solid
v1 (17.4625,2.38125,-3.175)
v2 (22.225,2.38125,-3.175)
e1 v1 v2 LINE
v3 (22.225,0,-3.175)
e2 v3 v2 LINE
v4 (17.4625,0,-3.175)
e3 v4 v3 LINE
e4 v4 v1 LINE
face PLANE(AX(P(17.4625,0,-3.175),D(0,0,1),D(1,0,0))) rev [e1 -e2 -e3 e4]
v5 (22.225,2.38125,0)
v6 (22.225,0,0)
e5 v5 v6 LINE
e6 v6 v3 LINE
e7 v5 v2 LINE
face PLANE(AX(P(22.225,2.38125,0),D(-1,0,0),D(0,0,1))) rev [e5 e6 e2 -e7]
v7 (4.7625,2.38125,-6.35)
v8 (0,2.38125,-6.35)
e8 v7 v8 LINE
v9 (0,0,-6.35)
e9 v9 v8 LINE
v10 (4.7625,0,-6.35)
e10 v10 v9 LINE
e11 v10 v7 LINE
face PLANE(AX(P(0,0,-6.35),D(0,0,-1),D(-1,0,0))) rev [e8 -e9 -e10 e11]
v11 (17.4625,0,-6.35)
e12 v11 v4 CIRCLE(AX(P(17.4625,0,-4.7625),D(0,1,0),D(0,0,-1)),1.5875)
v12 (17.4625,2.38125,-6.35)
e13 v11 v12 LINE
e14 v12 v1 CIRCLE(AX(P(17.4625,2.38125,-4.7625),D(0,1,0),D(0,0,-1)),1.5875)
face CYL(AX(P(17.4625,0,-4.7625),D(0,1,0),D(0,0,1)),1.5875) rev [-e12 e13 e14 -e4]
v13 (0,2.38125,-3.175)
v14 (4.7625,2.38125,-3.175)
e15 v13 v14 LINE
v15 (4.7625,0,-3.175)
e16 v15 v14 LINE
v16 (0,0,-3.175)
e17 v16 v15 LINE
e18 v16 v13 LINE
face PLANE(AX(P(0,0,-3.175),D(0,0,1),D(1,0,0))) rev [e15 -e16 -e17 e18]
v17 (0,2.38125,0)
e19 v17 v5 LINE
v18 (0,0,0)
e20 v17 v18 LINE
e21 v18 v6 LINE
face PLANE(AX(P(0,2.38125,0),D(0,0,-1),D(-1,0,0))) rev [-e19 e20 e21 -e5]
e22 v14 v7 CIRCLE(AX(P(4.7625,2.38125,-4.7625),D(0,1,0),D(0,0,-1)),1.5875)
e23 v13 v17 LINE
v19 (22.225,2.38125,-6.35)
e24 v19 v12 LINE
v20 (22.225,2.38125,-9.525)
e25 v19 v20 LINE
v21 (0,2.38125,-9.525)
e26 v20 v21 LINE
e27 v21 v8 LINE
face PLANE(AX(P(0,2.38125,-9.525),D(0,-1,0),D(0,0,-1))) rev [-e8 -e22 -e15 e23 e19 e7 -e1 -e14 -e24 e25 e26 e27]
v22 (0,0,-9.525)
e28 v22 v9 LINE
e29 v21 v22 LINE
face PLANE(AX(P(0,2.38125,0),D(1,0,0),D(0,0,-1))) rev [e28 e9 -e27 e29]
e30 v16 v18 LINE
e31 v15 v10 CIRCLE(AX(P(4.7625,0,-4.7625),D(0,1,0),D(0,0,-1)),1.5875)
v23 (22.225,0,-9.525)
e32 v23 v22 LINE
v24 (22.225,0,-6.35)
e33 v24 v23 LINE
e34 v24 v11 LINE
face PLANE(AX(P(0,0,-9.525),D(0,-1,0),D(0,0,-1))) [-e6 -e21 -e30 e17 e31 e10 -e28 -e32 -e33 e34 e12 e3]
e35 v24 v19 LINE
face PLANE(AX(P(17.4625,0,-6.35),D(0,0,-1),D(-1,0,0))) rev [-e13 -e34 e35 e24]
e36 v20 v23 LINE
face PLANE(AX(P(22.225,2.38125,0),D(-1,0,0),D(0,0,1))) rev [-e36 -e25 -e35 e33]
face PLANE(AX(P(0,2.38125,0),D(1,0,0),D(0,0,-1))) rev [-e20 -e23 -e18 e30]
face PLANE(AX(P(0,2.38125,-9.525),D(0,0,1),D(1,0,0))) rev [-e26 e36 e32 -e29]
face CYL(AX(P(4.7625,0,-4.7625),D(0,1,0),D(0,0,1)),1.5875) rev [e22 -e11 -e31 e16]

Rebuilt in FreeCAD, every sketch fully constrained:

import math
import FreeCAD as App
import Part
import Sketcher
Q = App.Units.Quantity

doc = App.newDocument("Part")
body = doc.addObject("PartDesign::Body", "Body")

# Sketch on XZ plane
sketch1 = body.newObject("Sketcher::SketchObject", "Sketch")
sketch1.AttachmentSupport = (doc.getObject("XZ_Plane"), [""])
sketch1.MapMode = "FlatFace"
sketch1.addGeometry([
    Part.LineSegment(App.Vector(0, -10, 0), App.Vector(0, 0, 0)),
    Part.LineSegment(App.Vector(0, 0, 0), App.Vector(22, 0, 0)),
    Part.LineSegment(App.Vector(22, 0, 0), App.Vector(22, -10, 0)),
    Part.LineSegment(App.Vector(22, -10, 0), App.Vector(0, -10, 0)),
], False)
sketch1.addConstraint([
    Sketcher.Constraint("Coincident", 0, 2, 1, 1),
    Sketcher.Constraint("Coincident", 1, 2, 2, 1),
    Sketcher.Constraint("Coincident", 2, 2, 3, 1),
    Sketcher.Constraint("Coincident", 3, 2, 0, 1),
    Sketcher.Constraint("Vertical", 0),
    Sketcher.Constraint("Horizontal", 1),
    Sketcher.Constraint("Vertical", 2),
    Sketcher.Constraint("Horizontal", 3),
    Sketcher.Constraint("Coincident", 0, 2, -1, 1),
    Sketcher.Constraint("DistanceX", 1, 1, 1, 2, Q("0.875 in")),
    Sketcher.Constraint("DistanceY", 0, 1, 0, 2, Q("0.375 in")),
])
pad1 = body.newObject("PartDesign::Pad", "Pad")
pad1.Profile = sketch1
pad1.Length = Q("0.09375 in")
pad1.Reversed = True

# Sketch on XZ plane
sketch2 = body.newObject("Sketcher::SketchObject", "Sketch001")
sketch2.AttachmentSupport = (doc.getObject("XZ_Plane"), [""])
sketch2.MapMode = "FlatFace"
sketch2.AttachmentOffset = App.Placement(App.Vector(0, 0, -0.09375 * 25.4), App.Rotation())
sketch2.addGeometry([
    Part.LineSegment(App.Vector(0, -3.2, 0), App.Vector(4.8, -3.2, 0)),  # 0
    Part.ArcOfCircle(Part.Circle(App.Vector(4.8, -4.8, 0), App.Vector(0, 0, 1), 1.6), math.radians(-90), math.radians(90)),  # 1
    Part.LineSegment(App.Vector(4.8, -6.3, 0), App.Vector(0, -6.3, 0)),  # 2
    Part.LineSegment(App.Vector(0, -6.3, 0), App.Vector(0, -3.2, 0)),  # 3
    Part.LineSegment(App.Vector(22.2, -3.2, 0), App.Vector(22.2, -6.3, 0)),  # 4
    Part.LineSegment(App.Vector(22.2, -6.3, 0), App.Vector(17.5, -6.3, 0)),  # 5
    Part.ArcOfCircle(Part.Circle(App.Vector(17.5, -4.8, 0), App.Vector(0, 0, 1), 1.6), math.radians(90), math.radians(270)),  # 6
    Part.LineSegment(App.Vector(17.5, -3.2, 0), App.Vector(22.2, -3.2, 0)),  # 7
], False)
sketch2.addConstraint([
    Sketcher.Constraint("Tangent", 0, 2, 1, 2),
    Sketcher.Constraint("Tangent", 1, 1, 2, 1),
    Sketcher.Constraint("Coincident", 2, 2, 3, 1),
    Sketcher.Constraint("Coincident", 3, 2, 0, 1),
    Sketcher.Constraint("Coincident", 4, 2, 5, 1),
    Sketcher.Constraint("Tangent", 5, 2, 6, 2),
    Sketcher.Constraint("Tangent", 6, 1, 7, 1),
    Sketcher.Constraint("Coincident", 7, 2, 4, 1),
    Sketcher.Constraint("Horizontal", 0),
    Sketcher.Constraint("Horizontal", 2),
    Sketcher.Constraint("Vertical", 3),
    Sketcher.Constraint("Vertical", 4),
    Sketcher.Constraint("Horizontal", 5),
    Sketcher.Constraint("Horizontal", 7),
    Sketcher.Constraint("Equal", 1, 6),
    Sketcher.Constraint("PointOnObject", 2, 2, -2),
    Sketcher.Constraint("Horizontal", 1, 3, 6, 3),
    Sketcher.Constraint("Equal", 2, 5),
    Sketcher.Constraint("Radius", 1, Q("0.0625 in")),
    Sketcher.Constraint("DistanceX", 1, 3, 6, 3, Q("0.5 in")),
    Sketcher.Constraint("DistanceX", 0, 1, 0, 2, Q("0.1875 in")),
    Sketcher.Constraint("DistanceY", 1, 1, -1, 1, Q("0.25 in")),
])
pocket1 = body.newObject("PartDesign::Pocket", "Pocket")
pocket1.Profile = sketch2
pocket1.Type = "ThroughAll"
pocket1.Reversed = True

doc.recompute()
